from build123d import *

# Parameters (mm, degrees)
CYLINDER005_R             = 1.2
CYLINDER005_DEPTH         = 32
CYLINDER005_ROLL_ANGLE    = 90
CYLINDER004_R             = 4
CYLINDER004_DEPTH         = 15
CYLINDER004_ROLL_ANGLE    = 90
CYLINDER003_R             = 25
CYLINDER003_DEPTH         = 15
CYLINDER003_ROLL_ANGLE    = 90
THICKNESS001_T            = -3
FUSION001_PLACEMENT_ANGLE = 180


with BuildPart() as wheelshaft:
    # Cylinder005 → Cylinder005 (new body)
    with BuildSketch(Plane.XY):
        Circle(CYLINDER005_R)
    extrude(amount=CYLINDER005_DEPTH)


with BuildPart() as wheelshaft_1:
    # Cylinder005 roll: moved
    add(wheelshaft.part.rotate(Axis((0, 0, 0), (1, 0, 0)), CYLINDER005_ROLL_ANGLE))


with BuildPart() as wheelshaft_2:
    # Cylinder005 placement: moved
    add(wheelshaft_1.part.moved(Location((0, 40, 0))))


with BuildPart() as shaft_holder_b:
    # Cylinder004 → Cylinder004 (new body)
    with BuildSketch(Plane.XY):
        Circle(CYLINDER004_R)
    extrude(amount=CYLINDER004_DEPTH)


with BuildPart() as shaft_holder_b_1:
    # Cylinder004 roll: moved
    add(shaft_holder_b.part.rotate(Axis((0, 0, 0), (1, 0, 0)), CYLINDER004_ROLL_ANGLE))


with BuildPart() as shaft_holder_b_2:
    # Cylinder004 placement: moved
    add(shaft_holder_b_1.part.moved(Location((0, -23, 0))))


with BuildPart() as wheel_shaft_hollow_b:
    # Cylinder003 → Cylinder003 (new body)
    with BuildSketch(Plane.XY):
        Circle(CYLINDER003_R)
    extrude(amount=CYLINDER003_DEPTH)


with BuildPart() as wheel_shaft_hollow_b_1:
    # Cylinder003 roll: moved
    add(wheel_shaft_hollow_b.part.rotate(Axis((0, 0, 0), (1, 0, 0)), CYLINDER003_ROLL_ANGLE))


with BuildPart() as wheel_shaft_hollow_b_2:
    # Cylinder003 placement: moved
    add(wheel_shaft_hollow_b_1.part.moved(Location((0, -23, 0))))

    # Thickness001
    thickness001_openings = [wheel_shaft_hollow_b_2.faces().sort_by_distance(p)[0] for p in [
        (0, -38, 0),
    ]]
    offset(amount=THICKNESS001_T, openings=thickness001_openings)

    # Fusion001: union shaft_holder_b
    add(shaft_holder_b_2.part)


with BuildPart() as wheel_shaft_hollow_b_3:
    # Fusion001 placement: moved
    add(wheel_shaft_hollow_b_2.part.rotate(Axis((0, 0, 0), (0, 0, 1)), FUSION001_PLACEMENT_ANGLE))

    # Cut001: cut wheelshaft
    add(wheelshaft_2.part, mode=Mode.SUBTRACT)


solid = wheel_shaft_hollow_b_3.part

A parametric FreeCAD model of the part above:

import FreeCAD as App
import Part
import Sketcher
from FreeCAD import Vector
Q = App.Units.Quantity


def faces_at(feature, points):
    """Names of the faces that lie closest to the given points."""
    faces = feature.Shape.Faces
    near = lambda p: min(range(len(faces)), key=lambda i: faces[i].distToShape(Part.Vertex(*p))[0])
    return sorted({f"Face{near(p) + 1}" for p in points})

doc = App.newDocument("Part")
body = doc.addObject("PartDesign::Body", "Body")

# Sketch on XY plane
sketch1 = body.newObject("Sketcher::SketchObject", "Sketch")
sketch1.AttachmentSupport = (doc.getObject("XY_Plane"), [""])
sketch1.MapMode = "FlatFace"
sketch1.addGeometry(Part.Circle(Vector(0, 0, 0), Vector(0, 0, 1), 1.2), False)
sketch1.addConstraint(Sketcher.Constraint("Coincident", 0, 3, -1, 1))
sketch1.addConstraint(Sketcher.Constraint("Diameter", 0, Q("2.4 mm")))
pad1 = body.newObject("PartDesign::Pad", "Pad")
pad1.Profile = sketch1
pad1.Length = 32
body2 = doc.addObject("PartDesign::Body", "Body001")
doc.recompute()

body.Placement = App.Placement(Vector(0, 0, 0), App.Rotation(Vector(1, 0, 0), 90))
boolean = body2.newObject("PartDesign::Boolean", "Boolean")
boolean.Type = "Fuse"
boolean.addObjects([body])
body3 = doc.addObject("PartDesign::Body", "Body002")
doc.recompute()

body2.Placement = App.Placement(Vector(0, 40, 0), App.Rotation(Vector(0, 0, 1), 0))
boolean2 = body3.newObject("PartDesign::Boolean", "Boolean001")
boolean2.Type = "Fuse"
boolean2.addObjects([body2])
body4 = doc.addObject("PartDesign::Body", "Body003")

# Sketch on XY plane
sketch2 = body4.newObject("Sketcher::SketchObject", "Sketch001")
sketch2.AttachmentSupport = (doc.getObject("XY_Plane003"), [""])
sketch2.MapMode = "FlatFace"
sketch2.addGeometry(Part.Circle(Vector(0, 0, 0), Vector(0, 0, 1), 4), False)
sketch2.addConstraint(Sketcher.Constraint("Coincident", 0, 3, -1, 1))
sketch2.addConstraint(Sketcher.Constraint("Diameter", 0, Q("8 mm")))
pad2 = body4.newObject("PartDesign::Pad", "Pad001")
pad2.Profile = sketch2
pad2.Length = 15
body5 = doc.addObject("PartDesign::Body", "Body004")
doc.recompute()

body4.Placement = App.Placement(Vector(0, 0, 0), App.Rotation(Vector(1, 0, 0), 90))
boolean3 = body5.newObject("PartDesign::Boolean", "Boolean002")
boolean3.Type = "Fuse"
boolean3.addObjects([body4])
body6 = doc.addObject("PartDesign::Body", "Body005")
doc.recompute()

body5.Placement = App.Placement(Vector(0, -23, 0), App.Rotation(Vector(0, 0, 1), 0))
boolean4 = body6.newObject("PartDesign::Boolean", "Boolean003")
boolean4.Type = "Fuse"
boolean4.addObjects([body5])
body7 = doc.addObject("PartDesign::Body", "Body006")

# Sketch on XY plane
sketch3 = body7.newObject("Sketcher::SketchObject", "Sketch002")
sketch3.AttachmentSupport = (doc.getObject("XY_Plane006"), [""])
sketch3.MapMode = "FlatFace"
sketch3.addGeometry(Part.Circle(Vector(0, 0, 0), Vector(0, 0, 1), 25), False)
sketch3.addConstraint(Sketcher.Constraint("Coincident", 0, 3, -1, 1))
sketch3.addConstraint(Sketcher.Constraint("Diameter", 0, Q("50 mm")))
pad3 = body7.newObject("PartDesign::Pad", "Pad002")
pad3.Profile = sketch3
pad3.Length = 15
body8 = doc.addObject("PartDesign::Body", "Body007")
doc.recompute()

body7.Placement = App.Placement(Vector(0, 0, 0), App.Rotation(Vector(1, 0, 0), 90))
boolean5 = body8.newObject("PartDesign::Boolean", "Boolean004")
boolean5.Type = "Fuse"
boolean5.addObjects([body7])
body9 = doc.addObject("PartDesign::Body", "Body008")
doc.recompute()

body8.Placement = App.Placement(Vector(0, -23, 0), App.Rotation(Vector(0, 0, 1), 0))
boolean6 = body9.newObject("PartDesign::Boolean", "Boolean005")
boolean6.Type = "Fuse"
boolean6.addObjects([body8])
doc.recompute()

thickness = body9.newObject("PartDesign::Thickness", "Thickness")
thickness.Base = (boolean6, faces_at(boolean6, [(0, -38, 0)]))
thickness.Value = 3
thickness.Reversed = True
thickness.Join = "Arc"
doc.recompute()

boolean7 = body9.newObject("PartDesign::Boolean", "Boolean006")
boolean7.Type = "Fuse"
boolean7.addObjects([body6])
body10 = doc.addObject("PartDesign::Body", "Body009")
doc.recompute()

body9.Placement = App.Placement(Vector(0, 0, 0), App.Rotation(Vector(0, 0, 1), 180))
boolean8 = body10.newObject("PartDesign::Boolean", "Boolean007")
boolean8.Type = "Fuse"
boolean8.addObjects([body9])
doc.recompute()

boolean9 = body10.newObject("PartDesign::Boolean", "Boolean008")
boolean9.Type = "Cut"
boolean9.addObjects([body3])

doc.recompute()
